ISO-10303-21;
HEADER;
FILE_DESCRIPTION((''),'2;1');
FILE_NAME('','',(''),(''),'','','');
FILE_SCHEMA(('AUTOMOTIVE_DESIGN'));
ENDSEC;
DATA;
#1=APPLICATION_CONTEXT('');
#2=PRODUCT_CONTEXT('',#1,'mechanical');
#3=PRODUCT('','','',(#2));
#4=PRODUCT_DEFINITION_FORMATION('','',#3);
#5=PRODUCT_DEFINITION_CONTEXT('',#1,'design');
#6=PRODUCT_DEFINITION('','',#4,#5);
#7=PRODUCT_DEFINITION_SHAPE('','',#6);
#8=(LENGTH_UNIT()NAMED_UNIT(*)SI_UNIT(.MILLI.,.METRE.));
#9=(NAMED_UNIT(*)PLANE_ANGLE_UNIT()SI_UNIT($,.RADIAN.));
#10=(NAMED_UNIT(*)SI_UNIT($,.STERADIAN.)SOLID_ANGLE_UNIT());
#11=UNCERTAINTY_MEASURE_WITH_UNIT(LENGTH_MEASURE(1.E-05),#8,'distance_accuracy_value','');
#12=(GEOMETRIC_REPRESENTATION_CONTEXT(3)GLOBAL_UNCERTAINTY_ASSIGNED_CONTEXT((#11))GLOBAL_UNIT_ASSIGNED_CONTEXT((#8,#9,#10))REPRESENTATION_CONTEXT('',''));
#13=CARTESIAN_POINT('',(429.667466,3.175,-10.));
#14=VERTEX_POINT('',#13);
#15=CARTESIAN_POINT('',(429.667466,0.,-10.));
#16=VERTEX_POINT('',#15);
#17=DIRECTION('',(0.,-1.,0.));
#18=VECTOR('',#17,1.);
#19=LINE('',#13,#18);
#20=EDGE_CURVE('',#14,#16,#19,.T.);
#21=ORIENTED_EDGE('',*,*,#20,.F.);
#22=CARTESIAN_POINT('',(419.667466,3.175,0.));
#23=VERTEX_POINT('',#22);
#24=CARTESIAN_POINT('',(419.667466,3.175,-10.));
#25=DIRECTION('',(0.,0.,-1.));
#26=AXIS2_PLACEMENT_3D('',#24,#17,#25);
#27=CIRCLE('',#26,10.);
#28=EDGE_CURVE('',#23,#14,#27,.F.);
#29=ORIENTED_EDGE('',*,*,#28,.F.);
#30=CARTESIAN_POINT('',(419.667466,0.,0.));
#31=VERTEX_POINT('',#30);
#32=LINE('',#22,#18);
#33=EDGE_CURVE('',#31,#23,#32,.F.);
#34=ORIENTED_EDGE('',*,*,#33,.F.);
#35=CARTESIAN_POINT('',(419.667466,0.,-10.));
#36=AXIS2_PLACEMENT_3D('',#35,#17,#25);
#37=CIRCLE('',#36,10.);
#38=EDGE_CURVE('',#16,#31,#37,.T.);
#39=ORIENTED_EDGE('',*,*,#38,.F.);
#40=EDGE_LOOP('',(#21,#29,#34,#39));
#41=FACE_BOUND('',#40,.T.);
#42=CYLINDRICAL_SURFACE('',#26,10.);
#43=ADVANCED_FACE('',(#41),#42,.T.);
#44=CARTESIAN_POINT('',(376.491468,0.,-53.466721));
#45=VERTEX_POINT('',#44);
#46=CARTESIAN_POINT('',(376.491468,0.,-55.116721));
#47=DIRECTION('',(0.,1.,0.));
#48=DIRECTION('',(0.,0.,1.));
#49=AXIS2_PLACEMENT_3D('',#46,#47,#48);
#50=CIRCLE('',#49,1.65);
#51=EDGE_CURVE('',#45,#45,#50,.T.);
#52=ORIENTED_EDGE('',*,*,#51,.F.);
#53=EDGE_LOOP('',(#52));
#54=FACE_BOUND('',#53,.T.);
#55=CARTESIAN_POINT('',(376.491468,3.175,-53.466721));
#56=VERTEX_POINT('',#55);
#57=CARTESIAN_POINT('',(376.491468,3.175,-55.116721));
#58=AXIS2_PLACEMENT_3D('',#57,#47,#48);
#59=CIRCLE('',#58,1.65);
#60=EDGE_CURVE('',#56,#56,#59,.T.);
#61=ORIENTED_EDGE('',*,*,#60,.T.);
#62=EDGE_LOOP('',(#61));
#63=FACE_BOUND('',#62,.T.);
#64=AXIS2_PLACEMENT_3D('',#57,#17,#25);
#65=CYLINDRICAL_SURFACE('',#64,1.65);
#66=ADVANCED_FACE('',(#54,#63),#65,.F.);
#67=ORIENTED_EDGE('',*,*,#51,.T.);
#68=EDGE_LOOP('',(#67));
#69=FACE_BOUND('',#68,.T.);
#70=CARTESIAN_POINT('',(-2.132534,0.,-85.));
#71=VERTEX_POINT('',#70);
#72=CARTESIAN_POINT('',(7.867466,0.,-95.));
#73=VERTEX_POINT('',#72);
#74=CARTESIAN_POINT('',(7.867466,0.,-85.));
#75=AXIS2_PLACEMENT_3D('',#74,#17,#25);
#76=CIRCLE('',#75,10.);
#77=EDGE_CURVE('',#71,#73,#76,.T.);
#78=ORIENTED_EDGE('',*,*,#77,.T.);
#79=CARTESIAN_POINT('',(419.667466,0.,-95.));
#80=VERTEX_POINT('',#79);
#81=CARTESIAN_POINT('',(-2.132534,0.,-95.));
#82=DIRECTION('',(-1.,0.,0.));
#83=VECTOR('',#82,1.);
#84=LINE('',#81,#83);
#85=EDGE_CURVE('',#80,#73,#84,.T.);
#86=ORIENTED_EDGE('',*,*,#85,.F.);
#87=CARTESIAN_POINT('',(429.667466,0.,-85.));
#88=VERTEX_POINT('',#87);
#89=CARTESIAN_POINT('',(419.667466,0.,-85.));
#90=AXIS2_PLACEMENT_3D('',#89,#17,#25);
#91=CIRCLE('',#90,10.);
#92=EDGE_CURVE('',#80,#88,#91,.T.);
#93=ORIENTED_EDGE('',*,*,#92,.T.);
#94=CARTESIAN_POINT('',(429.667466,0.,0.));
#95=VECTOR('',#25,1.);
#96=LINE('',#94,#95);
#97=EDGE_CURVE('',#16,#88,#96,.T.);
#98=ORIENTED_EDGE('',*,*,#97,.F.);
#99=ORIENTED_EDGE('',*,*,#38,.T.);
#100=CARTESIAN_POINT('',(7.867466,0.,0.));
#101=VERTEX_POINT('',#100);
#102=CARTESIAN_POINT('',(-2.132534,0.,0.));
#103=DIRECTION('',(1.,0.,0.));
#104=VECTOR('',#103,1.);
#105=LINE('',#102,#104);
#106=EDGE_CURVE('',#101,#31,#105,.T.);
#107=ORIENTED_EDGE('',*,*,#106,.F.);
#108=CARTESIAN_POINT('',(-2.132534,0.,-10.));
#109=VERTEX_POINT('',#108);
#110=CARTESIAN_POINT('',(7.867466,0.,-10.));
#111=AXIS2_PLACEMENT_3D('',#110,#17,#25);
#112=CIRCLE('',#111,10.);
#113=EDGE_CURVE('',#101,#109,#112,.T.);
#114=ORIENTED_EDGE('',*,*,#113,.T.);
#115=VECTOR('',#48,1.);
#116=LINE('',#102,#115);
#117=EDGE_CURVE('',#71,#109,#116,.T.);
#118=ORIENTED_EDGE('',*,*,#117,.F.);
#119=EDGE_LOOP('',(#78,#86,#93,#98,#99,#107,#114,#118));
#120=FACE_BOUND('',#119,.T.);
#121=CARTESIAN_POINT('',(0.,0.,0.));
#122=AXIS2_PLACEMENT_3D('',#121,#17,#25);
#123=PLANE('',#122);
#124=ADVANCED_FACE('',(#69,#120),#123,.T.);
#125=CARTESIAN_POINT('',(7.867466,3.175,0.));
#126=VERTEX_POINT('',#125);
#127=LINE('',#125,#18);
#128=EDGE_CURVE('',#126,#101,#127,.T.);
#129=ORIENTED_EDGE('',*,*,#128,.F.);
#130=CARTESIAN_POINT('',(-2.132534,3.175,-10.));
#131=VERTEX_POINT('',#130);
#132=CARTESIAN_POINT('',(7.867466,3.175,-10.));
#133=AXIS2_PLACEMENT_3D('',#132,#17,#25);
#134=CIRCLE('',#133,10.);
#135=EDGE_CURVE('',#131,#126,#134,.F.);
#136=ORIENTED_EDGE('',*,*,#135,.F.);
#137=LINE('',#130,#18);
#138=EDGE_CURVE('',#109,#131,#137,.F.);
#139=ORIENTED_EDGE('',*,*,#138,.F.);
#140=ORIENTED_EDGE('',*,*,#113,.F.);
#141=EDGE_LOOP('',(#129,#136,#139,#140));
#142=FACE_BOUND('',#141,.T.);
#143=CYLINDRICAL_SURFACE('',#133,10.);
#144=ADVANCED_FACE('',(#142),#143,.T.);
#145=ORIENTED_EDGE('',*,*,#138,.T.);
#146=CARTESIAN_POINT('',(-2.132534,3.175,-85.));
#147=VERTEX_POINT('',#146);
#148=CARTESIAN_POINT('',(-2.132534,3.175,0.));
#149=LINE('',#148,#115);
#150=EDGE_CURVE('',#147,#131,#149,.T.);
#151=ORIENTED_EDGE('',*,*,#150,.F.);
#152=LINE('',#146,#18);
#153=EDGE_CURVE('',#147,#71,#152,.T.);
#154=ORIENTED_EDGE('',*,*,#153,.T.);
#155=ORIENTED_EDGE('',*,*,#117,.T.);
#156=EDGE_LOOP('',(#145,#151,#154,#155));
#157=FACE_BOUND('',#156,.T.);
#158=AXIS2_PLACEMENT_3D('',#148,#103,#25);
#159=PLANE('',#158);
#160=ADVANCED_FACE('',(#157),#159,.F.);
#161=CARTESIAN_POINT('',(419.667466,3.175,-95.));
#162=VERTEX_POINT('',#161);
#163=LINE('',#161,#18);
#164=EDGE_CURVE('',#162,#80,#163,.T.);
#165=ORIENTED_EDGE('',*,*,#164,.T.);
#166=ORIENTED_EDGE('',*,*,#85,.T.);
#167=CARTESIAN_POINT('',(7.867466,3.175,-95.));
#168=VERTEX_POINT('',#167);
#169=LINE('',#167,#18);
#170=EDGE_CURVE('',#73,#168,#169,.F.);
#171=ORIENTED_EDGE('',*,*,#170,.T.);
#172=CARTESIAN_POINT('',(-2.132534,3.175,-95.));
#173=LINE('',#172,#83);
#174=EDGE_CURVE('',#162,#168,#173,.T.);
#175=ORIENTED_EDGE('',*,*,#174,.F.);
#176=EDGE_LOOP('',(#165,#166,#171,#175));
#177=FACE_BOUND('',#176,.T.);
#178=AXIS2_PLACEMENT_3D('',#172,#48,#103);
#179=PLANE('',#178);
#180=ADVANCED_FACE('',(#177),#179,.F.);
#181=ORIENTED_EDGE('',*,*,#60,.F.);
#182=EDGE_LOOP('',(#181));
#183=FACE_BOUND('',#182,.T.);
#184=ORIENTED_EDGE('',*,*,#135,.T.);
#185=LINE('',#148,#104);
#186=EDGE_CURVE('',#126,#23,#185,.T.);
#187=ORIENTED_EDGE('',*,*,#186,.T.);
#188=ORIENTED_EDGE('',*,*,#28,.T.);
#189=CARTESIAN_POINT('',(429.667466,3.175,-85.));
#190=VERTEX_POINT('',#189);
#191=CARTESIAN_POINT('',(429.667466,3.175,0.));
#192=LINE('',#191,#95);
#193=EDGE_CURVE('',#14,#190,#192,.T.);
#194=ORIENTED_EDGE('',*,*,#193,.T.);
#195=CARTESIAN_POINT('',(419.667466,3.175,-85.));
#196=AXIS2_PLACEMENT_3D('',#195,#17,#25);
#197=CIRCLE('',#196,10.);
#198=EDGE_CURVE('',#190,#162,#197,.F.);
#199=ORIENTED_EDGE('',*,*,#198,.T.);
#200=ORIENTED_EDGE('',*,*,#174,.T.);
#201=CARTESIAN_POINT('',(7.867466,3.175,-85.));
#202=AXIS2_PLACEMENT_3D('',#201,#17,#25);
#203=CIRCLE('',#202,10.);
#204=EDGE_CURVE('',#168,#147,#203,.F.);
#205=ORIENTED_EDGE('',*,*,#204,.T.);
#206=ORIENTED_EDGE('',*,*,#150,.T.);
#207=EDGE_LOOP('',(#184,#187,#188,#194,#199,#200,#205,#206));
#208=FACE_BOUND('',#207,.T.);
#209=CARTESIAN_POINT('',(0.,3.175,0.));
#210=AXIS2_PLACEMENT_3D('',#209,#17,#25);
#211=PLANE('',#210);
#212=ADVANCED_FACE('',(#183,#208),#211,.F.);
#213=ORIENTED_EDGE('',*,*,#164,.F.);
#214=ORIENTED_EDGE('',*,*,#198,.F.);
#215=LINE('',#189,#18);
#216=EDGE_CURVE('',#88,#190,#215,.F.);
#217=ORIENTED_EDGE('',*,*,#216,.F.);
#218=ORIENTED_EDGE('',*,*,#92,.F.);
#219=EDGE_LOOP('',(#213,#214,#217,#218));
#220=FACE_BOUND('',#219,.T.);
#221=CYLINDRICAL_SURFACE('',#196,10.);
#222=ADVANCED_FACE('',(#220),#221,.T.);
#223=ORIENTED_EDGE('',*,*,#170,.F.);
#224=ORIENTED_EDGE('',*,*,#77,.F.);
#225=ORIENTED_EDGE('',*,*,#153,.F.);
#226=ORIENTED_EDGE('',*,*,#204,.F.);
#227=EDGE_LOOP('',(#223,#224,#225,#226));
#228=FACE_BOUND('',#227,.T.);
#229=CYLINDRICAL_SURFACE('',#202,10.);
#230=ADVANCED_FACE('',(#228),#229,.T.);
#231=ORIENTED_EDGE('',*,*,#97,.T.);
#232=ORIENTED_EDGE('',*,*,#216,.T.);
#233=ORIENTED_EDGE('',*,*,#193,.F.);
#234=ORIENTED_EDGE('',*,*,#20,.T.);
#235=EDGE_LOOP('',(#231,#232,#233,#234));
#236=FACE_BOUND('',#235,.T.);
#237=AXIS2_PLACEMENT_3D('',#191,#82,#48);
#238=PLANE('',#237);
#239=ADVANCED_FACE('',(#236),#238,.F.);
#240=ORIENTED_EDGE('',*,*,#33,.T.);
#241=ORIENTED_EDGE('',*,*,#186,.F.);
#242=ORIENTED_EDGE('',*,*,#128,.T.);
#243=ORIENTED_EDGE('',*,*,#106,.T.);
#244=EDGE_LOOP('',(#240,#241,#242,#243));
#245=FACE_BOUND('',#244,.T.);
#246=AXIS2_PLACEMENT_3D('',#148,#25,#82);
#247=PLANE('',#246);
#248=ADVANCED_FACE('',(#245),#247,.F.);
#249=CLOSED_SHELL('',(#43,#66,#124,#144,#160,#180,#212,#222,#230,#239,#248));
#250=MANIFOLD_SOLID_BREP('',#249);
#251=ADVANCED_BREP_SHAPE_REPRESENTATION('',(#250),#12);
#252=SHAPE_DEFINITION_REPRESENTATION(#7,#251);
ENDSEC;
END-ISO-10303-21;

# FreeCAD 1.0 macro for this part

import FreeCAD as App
import Part
import Sketcher
from FreeCAD import Vector
Q = App.Units.Quantity


def edges_at(feature, points):
    """Names of the edges that pass closest to the given points."""
    edges = feature.Shape.Edges
    near = lambda p: min(range(len(edges)), key=lambda i: edges[i].distToShape(Part.Vertex(*p))[0])
    return sorted({f"Edge{near(p) + 1}" for p in points})

doc = App.newDocument("Part")
body = doc.addObject("PartDesign::Body", "Body")

sketch1 = body.newObject("Sketcher::SketchObject", "Sketch")
sketch1.AttachmentSupport = (doc.getObject("XZ_Plane"), [""])
sketch1.MapMode = "FlatFace"
sketch1.addGeometry([
    Part.LineSegment(Vector(-2.132534, -95, 0), Vector(-2.132534, 0, 0)),
    Part.LineSegment(Vector(-2.132534, 0, 0), Vector(429.667466, 0, 0)),
    Part.LineSegment(Vector(429.667466, 0, 0), Vector(429.667466, -95, 0)),
    Part.LineSegment(Vector(429.667466, -95, 0), Vector(-2.132534, -95, 0)),
    Part.Circle(Vector(376.491468, -55.116721, 0), Vector(0, 0, 1), 1.65),
], False)
sketch1.addConstraint([
    Sketcher.Constraint("Coincident", 0, 2, 1, 1),
    Sketcher.Constraint("Coincident", 1, 2, 2, 1),
    Sketcher.Constraint("Coincident", 2, 2, 3, 1),
    Sketcher.Constraint("Coincident", 3, 2, 0, 1),
    Sketcher.Constraint("Vertical", 0),
    Sketcher.Constraint("Horizontal", 1),
    Sketcher.Constraint("Vertical", 2),
    Sketcher.Constraint("Horizontal", 3),
    Sketcher.Constraint("PointOnObject", 0, 2, -1),
    Sketcher.Constraint("Diameter", 4, Q("3.3 mm")),
    Sketcher.Constraint("DistanceY", 0, 1, 0, 2, Q("95 mm")),
    Sketcher.Constraint("DistanceX", 1, 1, 1, 2, Q("431.8 mm")),
    Sketcher.Constraint("DistanceX", 0, 2, 4, 3, Q("378.624001 mm")),
    Sketcher.Constraint("DistanceY", 4, 3, -1, 1, Q("55.116721 mm")),
    Sketcher.Constraint("DistanceX", -1, 1, 4, 3, Q("376.491468 mm")),
])
pad1 = body.newObject("PartDesign::Pad", "Pad")
pad1.Profile = sketch1
pad1.Length = 3.175
pad1.Reversed = True
doc.recompute()

fillet = body.newObject("PartDesign::Fillet", "Fillet")
fillet.Base = (pad1, edges_at(pad1, [
    (-2.133, 1.587, -95),
    (429.667, 1.587, -95),
    (429.667, 1.587, 0),
    (-2.133, 1.587, 0),
]))
fillet.Radius = 10

doc.recompute()
